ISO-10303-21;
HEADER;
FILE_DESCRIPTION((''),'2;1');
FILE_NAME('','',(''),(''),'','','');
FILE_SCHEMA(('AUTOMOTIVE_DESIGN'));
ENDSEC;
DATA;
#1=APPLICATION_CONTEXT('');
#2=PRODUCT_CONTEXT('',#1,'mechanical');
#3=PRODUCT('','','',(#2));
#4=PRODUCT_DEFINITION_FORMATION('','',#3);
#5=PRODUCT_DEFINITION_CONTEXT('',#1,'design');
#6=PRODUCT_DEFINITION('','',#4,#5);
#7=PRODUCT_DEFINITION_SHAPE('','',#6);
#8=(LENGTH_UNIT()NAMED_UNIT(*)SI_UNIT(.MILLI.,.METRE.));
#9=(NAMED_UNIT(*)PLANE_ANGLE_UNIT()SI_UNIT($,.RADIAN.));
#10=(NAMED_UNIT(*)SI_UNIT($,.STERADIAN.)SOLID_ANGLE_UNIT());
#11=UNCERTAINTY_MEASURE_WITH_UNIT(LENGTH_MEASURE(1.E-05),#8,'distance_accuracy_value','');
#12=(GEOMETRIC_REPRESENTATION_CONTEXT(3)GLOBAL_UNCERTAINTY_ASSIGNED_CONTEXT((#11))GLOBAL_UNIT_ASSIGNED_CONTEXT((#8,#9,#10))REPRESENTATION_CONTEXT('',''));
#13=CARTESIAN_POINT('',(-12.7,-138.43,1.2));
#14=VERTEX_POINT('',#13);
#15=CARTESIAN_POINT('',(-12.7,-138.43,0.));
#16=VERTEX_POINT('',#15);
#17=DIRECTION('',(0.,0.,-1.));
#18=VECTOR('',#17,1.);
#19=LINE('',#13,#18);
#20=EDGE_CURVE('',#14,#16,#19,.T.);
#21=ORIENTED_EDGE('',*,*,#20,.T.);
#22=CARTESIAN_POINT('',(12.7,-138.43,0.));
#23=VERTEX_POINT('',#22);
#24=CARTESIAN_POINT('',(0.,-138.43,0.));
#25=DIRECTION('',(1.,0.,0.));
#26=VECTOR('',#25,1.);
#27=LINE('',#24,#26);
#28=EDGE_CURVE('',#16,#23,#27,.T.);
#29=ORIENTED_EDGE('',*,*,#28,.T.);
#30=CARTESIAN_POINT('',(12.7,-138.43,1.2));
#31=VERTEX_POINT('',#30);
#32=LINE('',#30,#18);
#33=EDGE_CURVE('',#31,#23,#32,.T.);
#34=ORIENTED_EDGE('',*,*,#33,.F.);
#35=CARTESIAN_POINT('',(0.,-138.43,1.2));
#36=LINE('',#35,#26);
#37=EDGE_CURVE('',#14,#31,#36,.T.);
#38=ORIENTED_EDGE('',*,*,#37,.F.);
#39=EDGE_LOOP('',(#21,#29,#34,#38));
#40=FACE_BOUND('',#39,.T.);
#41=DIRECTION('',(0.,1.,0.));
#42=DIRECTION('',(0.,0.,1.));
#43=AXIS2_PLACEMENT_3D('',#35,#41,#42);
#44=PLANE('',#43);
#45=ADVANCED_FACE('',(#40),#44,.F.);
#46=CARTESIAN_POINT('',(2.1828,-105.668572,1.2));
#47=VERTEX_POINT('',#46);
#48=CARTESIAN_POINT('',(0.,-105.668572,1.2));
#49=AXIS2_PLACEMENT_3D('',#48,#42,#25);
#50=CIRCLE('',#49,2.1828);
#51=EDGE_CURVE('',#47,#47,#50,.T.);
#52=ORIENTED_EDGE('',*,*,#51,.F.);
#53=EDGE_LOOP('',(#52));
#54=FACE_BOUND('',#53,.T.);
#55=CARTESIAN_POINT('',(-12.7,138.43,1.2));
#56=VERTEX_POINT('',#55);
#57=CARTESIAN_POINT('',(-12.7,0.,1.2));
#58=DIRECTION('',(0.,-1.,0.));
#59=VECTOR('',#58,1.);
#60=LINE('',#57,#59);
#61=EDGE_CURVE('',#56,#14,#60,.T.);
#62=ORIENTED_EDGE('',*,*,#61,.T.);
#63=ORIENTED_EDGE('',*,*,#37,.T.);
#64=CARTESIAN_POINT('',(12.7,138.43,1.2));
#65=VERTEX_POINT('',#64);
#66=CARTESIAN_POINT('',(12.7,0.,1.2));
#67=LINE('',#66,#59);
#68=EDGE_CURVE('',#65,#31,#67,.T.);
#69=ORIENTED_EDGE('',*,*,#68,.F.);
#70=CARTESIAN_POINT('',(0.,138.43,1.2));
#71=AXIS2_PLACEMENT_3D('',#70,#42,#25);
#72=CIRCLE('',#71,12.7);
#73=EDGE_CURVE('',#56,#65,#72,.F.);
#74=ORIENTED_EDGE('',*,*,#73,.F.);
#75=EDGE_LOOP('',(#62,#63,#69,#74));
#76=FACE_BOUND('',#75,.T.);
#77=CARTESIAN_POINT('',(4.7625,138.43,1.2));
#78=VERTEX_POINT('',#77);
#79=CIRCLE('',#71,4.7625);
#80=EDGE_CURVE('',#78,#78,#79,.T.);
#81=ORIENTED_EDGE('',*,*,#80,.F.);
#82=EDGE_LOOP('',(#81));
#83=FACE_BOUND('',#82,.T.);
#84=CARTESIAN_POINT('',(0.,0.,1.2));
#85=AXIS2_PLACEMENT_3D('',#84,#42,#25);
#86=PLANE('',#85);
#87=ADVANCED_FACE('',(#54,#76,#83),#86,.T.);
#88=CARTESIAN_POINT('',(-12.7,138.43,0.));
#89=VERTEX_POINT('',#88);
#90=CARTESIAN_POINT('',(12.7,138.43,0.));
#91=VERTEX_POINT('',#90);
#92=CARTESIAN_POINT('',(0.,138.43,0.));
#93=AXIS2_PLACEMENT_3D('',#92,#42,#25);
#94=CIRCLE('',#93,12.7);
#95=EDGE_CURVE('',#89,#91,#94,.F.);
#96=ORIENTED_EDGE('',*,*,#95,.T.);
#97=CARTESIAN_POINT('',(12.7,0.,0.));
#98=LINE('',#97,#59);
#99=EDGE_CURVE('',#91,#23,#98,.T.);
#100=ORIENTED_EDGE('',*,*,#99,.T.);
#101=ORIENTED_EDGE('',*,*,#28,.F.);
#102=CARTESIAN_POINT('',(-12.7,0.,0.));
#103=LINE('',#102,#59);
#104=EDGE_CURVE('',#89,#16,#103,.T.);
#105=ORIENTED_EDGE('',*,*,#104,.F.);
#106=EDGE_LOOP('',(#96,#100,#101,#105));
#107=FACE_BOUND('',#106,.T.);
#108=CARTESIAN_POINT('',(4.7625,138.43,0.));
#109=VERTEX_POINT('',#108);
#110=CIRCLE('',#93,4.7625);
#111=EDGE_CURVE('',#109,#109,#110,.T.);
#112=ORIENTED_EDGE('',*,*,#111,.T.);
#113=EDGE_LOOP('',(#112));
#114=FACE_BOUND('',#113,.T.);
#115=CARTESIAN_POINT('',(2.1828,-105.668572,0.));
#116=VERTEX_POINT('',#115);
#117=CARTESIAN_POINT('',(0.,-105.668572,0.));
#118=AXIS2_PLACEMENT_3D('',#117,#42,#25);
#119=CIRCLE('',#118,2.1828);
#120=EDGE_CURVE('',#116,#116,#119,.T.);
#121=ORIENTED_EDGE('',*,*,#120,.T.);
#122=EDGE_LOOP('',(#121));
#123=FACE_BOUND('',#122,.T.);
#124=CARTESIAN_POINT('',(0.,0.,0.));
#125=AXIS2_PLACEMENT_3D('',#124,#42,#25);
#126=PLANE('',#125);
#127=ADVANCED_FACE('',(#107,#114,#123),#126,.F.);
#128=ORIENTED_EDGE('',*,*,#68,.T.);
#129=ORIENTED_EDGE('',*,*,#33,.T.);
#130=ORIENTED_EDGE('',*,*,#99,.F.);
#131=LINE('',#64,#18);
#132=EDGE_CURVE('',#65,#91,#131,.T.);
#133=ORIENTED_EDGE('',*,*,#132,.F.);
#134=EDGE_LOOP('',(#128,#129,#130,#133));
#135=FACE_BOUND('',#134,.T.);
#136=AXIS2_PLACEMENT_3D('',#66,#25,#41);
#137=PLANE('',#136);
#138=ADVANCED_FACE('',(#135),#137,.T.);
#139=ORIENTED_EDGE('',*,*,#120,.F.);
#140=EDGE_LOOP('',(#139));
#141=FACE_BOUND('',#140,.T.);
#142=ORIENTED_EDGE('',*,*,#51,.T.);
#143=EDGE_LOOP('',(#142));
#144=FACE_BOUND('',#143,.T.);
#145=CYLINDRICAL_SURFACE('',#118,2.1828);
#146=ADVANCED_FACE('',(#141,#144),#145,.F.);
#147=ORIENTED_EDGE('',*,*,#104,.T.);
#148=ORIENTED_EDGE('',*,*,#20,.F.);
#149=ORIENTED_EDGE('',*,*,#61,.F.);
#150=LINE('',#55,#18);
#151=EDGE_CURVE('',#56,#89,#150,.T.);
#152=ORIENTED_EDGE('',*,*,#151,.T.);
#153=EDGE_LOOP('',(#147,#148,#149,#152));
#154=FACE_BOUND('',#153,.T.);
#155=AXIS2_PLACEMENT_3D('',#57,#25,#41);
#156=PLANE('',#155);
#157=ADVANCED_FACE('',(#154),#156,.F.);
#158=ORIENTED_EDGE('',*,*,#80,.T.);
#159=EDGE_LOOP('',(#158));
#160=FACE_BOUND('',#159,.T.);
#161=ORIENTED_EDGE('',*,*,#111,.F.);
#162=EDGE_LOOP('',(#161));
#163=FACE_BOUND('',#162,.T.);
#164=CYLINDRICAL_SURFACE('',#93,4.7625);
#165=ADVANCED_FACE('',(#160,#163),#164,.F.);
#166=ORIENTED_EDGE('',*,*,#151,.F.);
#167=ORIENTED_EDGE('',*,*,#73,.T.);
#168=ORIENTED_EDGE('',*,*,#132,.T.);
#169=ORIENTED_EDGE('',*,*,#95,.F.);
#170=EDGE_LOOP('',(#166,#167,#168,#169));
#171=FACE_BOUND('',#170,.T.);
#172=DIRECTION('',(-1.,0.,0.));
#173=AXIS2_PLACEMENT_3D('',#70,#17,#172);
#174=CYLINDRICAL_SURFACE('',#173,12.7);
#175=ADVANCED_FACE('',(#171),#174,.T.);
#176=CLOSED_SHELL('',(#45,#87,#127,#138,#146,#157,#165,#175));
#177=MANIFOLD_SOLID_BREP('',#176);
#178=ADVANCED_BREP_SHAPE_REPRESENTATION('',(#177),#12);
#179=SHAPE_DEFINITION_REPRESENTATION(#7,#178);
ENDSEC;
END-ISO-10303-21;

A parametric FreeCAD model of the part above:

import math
import FreeCAD as App
import Part
import Sketcher
Q = App.Units.Quantity

doc = App.newDocument("Part")
params = doc.addObject("Spreadsheet::Sheet", "Params")
for row, (alias, value) in enumerate([
    ("sketch1_radius", "0.5 in"),
    ("sketch1_height", "10.9 in"),
    ("pad1_length", "1.2 mm"),
    ("sketch2_diameter", "0.375 in"),
], start=1):
    params.set(f"A{row}", alias)
    params.set(f"B{row}", "=" + value)
    params.setAlias(f"B{row}", alias)

body = doc.addObject("PartDesign::Body", "Body")

# Sketch on XY plane
sketch1 = doc.addObject("Sketcher::SketchObject", "Sketch")
body.addObject(sketch1)
sketch1.AttachmentSupport = (doc.XY_Plane, [""])
sketch1.MapMode = "FlatFace"
sketch1.addGeometry(Part.LineSegment(App.Vector(-13, 138, 0), App.Vector(-13, -138, 0)), False)
sketch1.addGeometry(Part.LineSegment(App.Vector(-13, -138, 0), App.Vector(13, -138, 0)), False)
sketch1.addGeometry(Part.LineSegment(App.Vector(13, -138, 0), App.Vector(13, 138, 0)), False)
sketch1.addGeometry(Part.ArcOfCircle(Part.Circle(App.Vector(0, 138, 0), App.Vector(0, 0, 1), 13), math.radians(0), math.radians(180)), False)
sketch1.addConstraint(Sketcher.Constraint("Coincident", 0, 2, 1, 1))
sketch1.addConstraint(Sketcher.Constraint("Coincident", 1, 2, 2, 1))
sketch1.addConstraint(Sketcher.Constraint("Tangent", 2, 2, 3, 1))
sketch1.addConstraint(Sketcher.Constraint("Tangent", 3, 2, 0, 1))
sketch1.addConstraint(Sketcher.Constraint("Vertical", 0))
sketch1.addConstraint(Sketcher.Constraint("Horizontal", 1))
sketch1.addConstraint(Sketcher.Constraint("Vertical", 2))
sketch1.addConstraint(Sketcher.Constraint("Symmetric", 0, 2, 2, 2, -1, 1))
sketch1.addConstraint(Sketcher.Constraint("Radius", 3, Q("0.5 in")))
sketch1.addConstraint(Sketcher.Constraint("DistanceY", 0, 2, 0, 1, Q("10.9 in")))
sketch1.setExpression("Constraints[8]", "Params.sketch1_radius")
sketch1.setExpression("Constraints[9]", "Params.sketch1_height")
pad1 = doc.addObject("PartDesign::Pad", "Pad")
body.addObject(pad1)
pad1.Profile = sketch1
pad1.setExpression("Length", "Params.pad1_length")

# Sketch on XY plane
sketch2 = doc.addObject("Sketcher::SketchObject", "Sketch001")
body.addObject(sketch2)
sketch2.AttachmentSupport = (doc.XY_Plane, [""])
sketch2.MapMode = "FlatFace"
sketch2.AttachmentOffset = App.Placement(App.Vector(0, 0, 1.2), App.Rotation())
sketch2.addGeometry(Part.Circle(App.Vector(0, 138.4, 0), App.Vector(0, 0, 1), 4.8), False)
sketch2.addConstraint(Sketcher.Constraint("PointOnObject", 0, 3, -2))
sketch2.addConstraint(Sketcher.Constraint("Diameter", 0, Q("0.375 in")))
sketch2.addConstraint(Sketcher.Constraint("DistanceY", -1, 1, 0, 3, Q("5.45 in")))
sketch2.setExpression("Constraints[1]", "Params.sketch2_diameter")
pocket1 = doc.addObject("PartDesign::Pocket", "Pocket")
body.addObject(pocket1)
pocket1.Profile = sketch2
pocket1.Type = "ThroughAll"

# Sketch on XY plane
sketch3 = doc.addObject("Sketcher::SketchObject", "Sketch002")
body.addObject(sketch3)
sketch3.AttachmentSupport = (doc.XY_Plane, [""])
sketch3.MapMode = "FlatFace"
sketch3.AttachmentOffset = App.Placement(App.Vector(0, 0, 1.2), App.Rotation())
sketch3.addGeometry(Part.Circle(App.Vector(0, -105.7, 0), App.Vector(0, 0, 1), 2.2), False)
sketch3.addConstraint(Sketcher.Constraint("PointOnObject", 0, 3, -2))
sketch3.addConstraint(Sketcher.Constraint("Diameter", 0, Q("4.3656 mm")))
sketch3.addConstraint(Sketcher.Constraint("DistanceY", 0, 3, -1, 1, Q("105.668572 mm")))
pocket2 = doc.addObject("PartDesign::Pocket", "Pocket001")
body.addObject(pocket2)
pocket2.Profile = sketch3
pocket2.Type = "ThroughAll"

doc.recompute()
